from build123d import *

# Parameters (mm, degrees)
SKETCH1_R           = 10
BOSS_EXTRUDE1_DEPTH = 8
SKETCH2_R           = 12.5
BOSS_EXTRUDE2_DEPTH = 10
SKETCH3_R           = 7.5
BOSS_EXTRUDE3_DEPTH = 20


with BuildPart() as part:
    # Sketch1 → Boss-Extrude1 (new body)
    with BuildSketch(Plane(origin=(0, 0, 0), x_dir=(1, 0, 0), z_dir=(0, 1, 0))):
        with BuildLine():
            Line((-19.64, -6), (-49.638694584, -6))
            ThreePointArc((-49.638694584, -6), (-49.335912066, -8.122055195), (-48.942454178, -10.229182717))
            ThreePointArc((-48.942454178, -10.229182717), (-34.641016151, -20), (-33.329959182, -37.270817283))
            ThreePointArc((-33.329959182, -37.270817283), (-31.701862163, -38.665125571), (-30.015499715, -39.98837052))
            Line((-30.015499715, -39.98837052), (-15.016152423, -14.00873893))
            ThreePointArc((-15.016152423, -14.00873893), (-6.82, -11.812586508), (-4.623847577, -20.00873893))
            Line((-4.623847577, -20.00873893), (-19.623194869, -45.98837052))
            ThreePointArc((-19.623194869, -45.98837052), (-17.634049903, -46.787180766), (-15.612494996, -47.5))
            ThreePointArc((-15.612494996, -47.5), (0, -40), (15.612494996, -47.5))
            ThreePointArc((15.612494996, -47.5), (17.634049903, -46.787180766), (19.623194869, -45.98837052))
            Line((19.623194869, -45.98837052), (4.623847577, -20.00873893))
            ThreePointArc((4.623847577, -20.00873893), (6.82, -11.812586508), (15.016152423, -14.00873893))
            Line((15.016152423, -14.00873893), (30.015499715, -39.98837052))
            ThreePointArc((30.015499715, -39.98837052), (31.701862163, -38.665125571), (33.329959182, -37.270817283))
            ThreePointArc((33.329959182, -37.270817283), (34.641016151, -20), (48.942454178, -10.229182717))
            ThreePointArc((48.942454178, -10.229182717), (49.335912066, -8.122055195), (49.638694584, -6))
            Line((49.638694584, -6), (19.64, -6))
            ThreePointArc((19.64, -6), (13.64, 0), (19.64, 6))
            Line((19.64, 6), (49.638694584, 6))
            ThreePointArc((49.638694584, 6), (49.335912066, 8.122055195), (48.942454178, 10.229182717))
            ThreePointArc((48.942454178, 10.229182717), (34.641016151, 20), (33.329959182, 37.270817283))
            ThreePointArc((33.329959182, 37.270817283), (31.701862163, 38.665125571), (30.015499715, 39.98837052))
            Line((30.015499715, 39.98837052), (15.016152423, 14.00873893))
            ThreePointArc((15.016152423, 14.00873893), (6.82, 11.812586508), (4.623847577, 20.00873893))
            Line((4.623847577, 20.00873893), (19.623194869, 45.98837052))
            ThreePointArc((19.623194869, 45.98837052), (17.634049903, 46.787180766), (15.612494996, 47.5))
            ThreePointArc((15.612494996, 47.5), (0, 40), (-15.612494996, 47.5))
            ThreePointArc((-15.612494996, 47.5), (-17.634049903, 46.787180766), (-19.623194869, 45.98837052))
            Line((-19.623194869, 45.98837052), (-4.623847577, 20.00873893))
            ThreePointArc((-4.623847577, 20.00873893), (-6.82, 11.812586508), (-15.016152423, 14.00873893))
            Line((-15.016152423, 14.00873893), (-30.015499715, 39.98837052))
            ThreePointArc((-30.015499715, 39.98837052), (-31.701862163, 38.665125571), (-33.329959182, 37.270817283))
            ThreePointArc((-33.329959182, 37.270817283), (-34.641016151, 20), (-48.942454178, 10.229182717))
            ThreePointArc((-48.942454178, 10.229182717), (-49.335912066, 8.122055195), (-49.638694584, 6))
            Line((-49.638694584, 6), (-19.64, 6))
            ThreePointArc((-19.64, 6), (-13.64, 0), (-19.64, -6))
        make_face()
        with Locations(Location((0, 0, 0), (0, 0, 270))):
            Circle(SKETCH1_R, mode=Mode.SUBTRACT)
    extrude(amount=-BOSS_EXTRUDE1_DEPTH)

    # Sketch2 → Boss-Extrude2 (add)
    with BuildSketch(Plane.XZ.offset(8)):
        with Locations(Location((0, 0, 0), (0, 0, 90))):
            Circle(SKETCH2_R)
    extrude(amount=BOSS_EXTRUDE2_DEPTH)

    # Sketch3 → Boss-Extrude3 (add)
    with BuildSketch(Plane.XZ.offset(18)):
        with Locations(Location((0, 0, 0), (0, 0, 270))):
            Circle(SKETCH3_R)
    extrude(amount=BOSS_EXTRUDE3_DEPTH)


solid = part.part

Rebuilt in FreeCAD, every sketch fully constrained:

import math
import FreeCAD as App
import Part
import Sketcher
from FreeCAD import Vector
Q = App.Units.Quantity

doc = App.newDocument("Part")
body = doc.addObject("PartDesign::Body", "Body")

sketch1 = body.newObject("Sketcher::SketchObject", "Sketch")
sketch1.AttachmentSupport = (doc.getObject("XZ_Plane"), [""])
sketch1.MapMode = "FlatFace"
sketch1.addGeometry(Part.LineSegment(Vector(-19.6, 6, 0), Vector(-49.6, 6, 0)), False)
sketch1.addGeometry(Part.ArcOfCircle(Part.Circle(Vector(0, 0, 0), Vector(0, 0, 1), 50), math.radians(168.19), math.radians(173.11)), False)
sketch1.addGeometry(Part.ArcOfCircle(Part.Circle(Vector(-52, 30, 0), Vector(0, 0, 1), 20), math.radians(-81), math.radians(21)), False)
sketch1.addGeometry(Part.ArcOfCircle(Part.Circle(Vector(0, 0, 0), Vector(0, 0, 1), 50), math.radians(126.89), math.radians(131.81)), False)
sketch1.addGeometry(Part.LineSegment(Vector(-30, 40, 0), Vector(-15, 14, 0)), False)
sketch1.addGeometry(Part.ArcOfCircle(Part.Circle(Vector(-9.8, 17, 0), Vector(0, 0, 1), 6), math.radians(-150), math.radians(30)), False)
sketch1.addGeometry(Part.LineSegment(Vector(-4.6, 20, 0), Vector(-19.6, 46, 0)), False)
sketch1.addGeometry(Part.ArcOfCircle(Part.Circle(Vector(0, 0, 0), Vector(0, 0, 1), 50), math.radians(108.19), math.radians(113.11)), False)
sketch1.addGeometry(Part.ArcOfCircle(Part.Circle(Vector(0, 60, 0), Vector(0, 0, 1), 20), math.radians(-141), math.radians(-39)), False)
sketch1.addGeometry(Part.ArcOfCircle(Part.Circle(Vector(0, 0, 0), Vector(0, 0, 1), 50), math.radians(66.89), math.radians(71.81)), False)
sketch1.addGeometry(Part.LineSegment(Vector(19.6, 46, 0), Vector(4.6, 20, 0)), False)
sketch1.addGeometry(Part.ArcOfCircle(Part.Circle(Vector(9.8, 17, 0), Vector(0, 0, 1), 6), math.radians(150), math.radians(330)), False)
sketch1.addGeometry(Part.LineSegment(Vector(15, 14, 0), Vector(30, 40, 0)), False)
sketch1.addGeometry(Part.ArcOfCircle(Part.Circle(Vector(0, 0, 0), Vector(0, 0, 1), 50), math.radians(48.19), math.radians(53.11)), False)
sketch1.addGeometry(Part.ArcOfCircle(Part.Circle(Vector(52, 30, 0), Vector(0, 0, 1), 20), math.radians(159), math.radians(261)), False)
sketch1.addGeometry(Part.ArcOfCircle(Part.Circle(Vector(0, 0, 0), Vector(0, 0, 1), 50), math.radians(6.89), math.radians(11.81)), False)
sketch1.addGeometry(Part.LineSegment(Vector(49.6, 6, 0), Vector(19.6, 6, 0)), False)
sketch1.addGeometry(Part.ArcOfCircle(Part.Circle(Vector(19.6, 0, 0), Vector(0, 0, 1), 6), math.radians(90), math.radians(270)), False)
sketch1.addGeometry(Part.LineSegment(Vector(19.6, -6, 0), Vector(49.6, -6, 0)), False)
sketch1.addGeometry(Part.ArcOfCircle(Part.Circle(Vector(0, 0, 0), Vector(0, 0, 1), 50), math.radians(-11.81), math.radians(-6.89)), False)
sketch1.addGeometry(Part.ArcOfCircle(Part.Circle(Vector(52, -30, 0), Vector(0, 0, 1), 20), math.radians(99), math.radians(201)), False)
sketch1.addGeometry(Part.ArcOfCircle(Part.Circle(Vector(0, 0, 0), Vector(0, 0, 1), 50), math.radians(-53.11), math.radians(-48.19)), False)
sketch1.addGeometry(Part.LineSegment(Vector(30, -40, 0), Vector(15, -14, 0)), False)
sketch1.addGeometry(Part.ArcOfCircle(Part.Circle(Vector(9.8, -17, 0), Vector(0, 0, 1), 6), math.radians(30), math.radians(210)), False)
sketch1.addGeometry(Part.LineSegment(Vector(4.6, -20, 0), Vector(19.6, -46, 0)), False)
sketch1.addGeometry(Part.ArcOfCircle(Part.Circle(Vector(0, 0, 0), Vector(0, 0, 1), 50), math.radians(-71.81), math.radians(-66.89)), False)
sketch1.addGeometry(Part.ArcOfCircle(Part.Circle(Vector(0, -60, 0), Vector(0, 0, 1), 20), math.radians(39), math.radians(141)), False)
sketch1.addGeometry(Part.ArcOfCircle(Part.Circle(Vector(0, 0, 0), Vector(0, 0, 1), 50), math.radians(-113.11), math.radians(-108.19)), False)
sketch1.addGeometry(Part.LineSegment(Vector(-19.6, -46, 0), Vector(-4.6, -20, 0)), False)
sketch1.addGeometry(Part.ArcOfCircle(Part.Circle(Vector(-9.8, -17, 0), Vector(0, 0, 1), 6), math.radians(-30), math.radians(150)), False)
sketch1.addGeometry(Part.LineSegment(Vector(-15, -14, 0), Vector(-30, -40, 0)), False)
sketch1.addGeometry(Part.ArcOfCircle(Part.Circle(Vector(0, 0, 0), Vector(0, 0, 1), 50), math.radians(-131.81), math.radians(-126.89)), False)
sketch1.addGeometry(Part.ArcOfCircle(Part.Circle(Vector(-52, -30, 0), Vector(0, 0, 1), 20), math.radians(-21), math.radians(81)), False)
sketch1.addGeometry(Part.ArcOfCircle(Part.Circle(Vector(0, 0, 0), Vector(0, 0, 1), 50), math.radians(-173.11), math.radians(-168.19)), False)
sketch1.addGeometry(Part.LineSegment(Vector(-49.6, -6, 0), Vector(-19.6, -6, 0)), False)
sketch1.addGeometry(Part.ArcOfCircle(Part.Circle(Vector(-19.6, 0, 0), Vector(0, 0, 1), 6), math.radians(-90), math.radians(90)), False)
sketch1.addGeometry(Part.Circle(Vector(0, 0, 0), Vector(0, 0, 1), 10), False)
sketch1.addConstraint(Sketcher.Constraint("Coincident", 0, 2, 1, 2))
sketch1.addConstraint(Sketcher.Constraint("Coincident", 1, 1, 2, 1))
sketch1.addConstraint(Sketcher.Constraint("Coincident", 2, 2, 3, 2))
sketch1.addConstraint(Sketcher.Constraint("Coincident", 3, 1, 4, 1))
sketch1.addConstraint(Sketcher.Constraint("Tangent", 4, 2, 5, 1))
sketch1.addConstraint(Sketcher.Constraint("Tangent", 5, 2, 6, 1))
sketch1.addConstraint(Sketcher.Constraint("Coincident", 6, 2, 7, 2))
sketch1.addConstraint(Sketcher.Constraint("Coincident", 7, 1, 8, 1))
sketch1.addConstraint(Sketcher.Constraint("Coincident", 8, 2, 9, 2))
sketch1.addConstraint(Sketcher.Constraint("Coincident", 9, 1, 10, 1))
sketch1.addConstraint(Sketcher.Constraint("Tangent", 10, 2, 11, 1))
sketch1.addConstraint(Sketcher.Constraint("Tangent", 11, 2, 12, 1))
sketch1.addConstraint(Sketcher.Constraint("Coincident", 12, 2, 13, 2))
sketch1.addConstraint(Sketcher.Constraint("Coincident", 13, 1, 14, 1))
sketch1.addConstraint(Sketcher.Constraint("Coincident", 14, 2, 15, 2))
sketch1.addConstraint(Sketcher.Constraint("Coincident", 15, 1, 16, 1))
sketch1.addConstraint(Sketcher.Constraint("Tangent", 16, 2, 17, 1))
sketch1.addConstraint(Sketcher.Constraint("Tangent", 17, 2, 18, 1))
sketch1.addConstraint(Sketcher.Constraint("Coincident", 18, 2, 19, 2))
sketch1.addConstraint(Sketcher.Constraint("Coincident", 19, 1, 20, 1))
sketch1.addConstraint(Sketcher.Constraint("Coincident", 20, 2, 21, 2))
sketch1.addConstraint(Sketcher.Constraint("Coincident", 21, 1, 22, 1))
sketch1.addConstraint(Sketcher.Constraint("Tangent", 22, 2, 23, 1))
sketch1.addConstraint(Sketcher.Constraint("Tangent", 23, 2, 24, 1))
sketch1.addConstraint(Sketcher.Constraint("Coincident", 24, 2, 25, 2))
sketch1.addConstraint(Sketcher.Constraint("Coincident", 25, 1, 26, 1))
sketch1.addConstraint(Sketcher.Constraint("Coincident", 26, 2, 27, 2))
sketch1.addConstraint(Sketcher.Constraint("Coincident", 27, 1, 28, 1))
sketch1.addConstraint(Sketcher.Constraint("Tangent", 28, 2, 29, 1))
sketch1.addConstraint(Sketcher.Constraint("Tangent", 29, 2, 30, 1))
sketch1.addConstraint(Sketcher.Constraint("Coincident", 30, 2, 31, 2))
sketch1.addConstraint(Sketcher.Constraint("Coincident", 31, 1, 32, 1))
sketch1.addConstraint(Sketcher.Constraint("Coincident", 32, 2, 33, 2))
sketch1.addConstraint(Sketcher.Constraint("Coincident", 33, 1, 34, 1))
sketch1.addConstraint(Sketcher.Constraint("Tangent", 34, 2, 35, 1))
sketch1.addConstraint(Sketcher.Constraint("Tangent", 35, 2, 0, 1))
sketch1.addConstraint(Sketcher.Constraint("Horizontal", 0))
sketch1.addConstraint(Sketcher.Constraint("Horizontal", 16))
sketch1.addConstraint(Sketcher.Constraint("Horizontal", 18))
sketch1.addConstraint(Sketcher.Constraint("Horizontal", 34))
sketch1.addConstraint(Sketcher.Constraint("Coincident", 1, 3, -1, 1))
sketch1.addConstraint(Sketcher.Constraint("Coincident", 3, 3, -1, 1))
sketch1.addConstraint(Sketcher.Constraint("Coincident", 7, 3, -1, 1))
sketch1.addConstraint(Sketcher.Constraint("Coincident", 9, 3, -1, 1))
sketch1.addConstraint(Sketcher.Constraint("Coincident", 13, 3, -1, 1))
sketch1.addConstraint(Sketcher.Constraint("Coincident", 15, 3, -1, 1))
sketch1.addConstraint(Sketcher.Constraint("Coincident", 19, 3, -1, 1))
sketch1.addConstraint(Sketcher.Constraint("Coincident", 21, 3, -1, 1))
sketch1.addConstraint(Sketcher.Constraint("Coincident", 25, 3, -1, 1))
sketch1.addConstraint(Sketcher.Constraint("Coincident", 27, 3, -1, 1))
sketch1.addConstraint(Sketcher.Constraint("Coincident", 31, 3, -1, 1))
sketch1.addConstraint(Sketcher.Constraint("Coincident", 33, 3, -1, 1))
sketch1.addConstraint(Sketcher.Constraint("Coincident", 36, 3, -1, 1))
sketch1.addConstraint(Sketcher.Constraint("Equal", 1, 3))
sketch1.addConstraint(Sketcher.Constraint("Equal", 3, 7))
sketch1.addConstraint(Sketcher.Constraint("Equal", 2, 8))
sketch1.addConstraint(Sketcher.Constraint("Equal", 7, 9))
sketch1.addConstraint(Sketcher.Constraint("Equal", 5, 11))
sketch1.addConstraint(Sketcher.Constraint("Equal", 9, 13))
sketch1.addConstraint(Sketcher.Constraint("Equal", 8, 14))
sketch1.addConstraint(Sketcher.Constraint("Equal", 13, 15))
sketch1.addConstraint(Sketcher.Constraint("Equal", 11, 17))
sketch1.addConstraint(Sketcher.Constraint("Equal", 15, 19))
sketch1.addConstraint(Sketcher.Constraint("Equal", 14, 20))
sketch1.addConstraint(Sketcher.Constraint("Equal", 19, 21))
sketch1.addConstraint(Sketcher.Constraint("Equal", 17, 23))
sketch1.addConstraint(Sketcher.Constraint("Equal", 21, 25))
sketch1.addConstraint(Sketcher.Constraint("Equal", 20, 26))
sketch1.addConstraint(Sketcher.Constraint("Equal", 25, 27))
sketch1.addConstraint(Sketcher.Constraint("Equal", 23, 29))
sketch1.addConstraint(Sketcher.Constraint("Equal", 27, 31))
sketch1.addConstraint(Sketcher.Constraint("Equal", 26, 32))
sketch1.addConstraint(Sketcher.Constraint("Equal", 31, 33))
sketch1.addConstraint(Sketcher.Constraint("Equal", 29, 35))
sketch1.addConstraint(Sketcher.Constraint("Symmetric", 2, 3, 20, 3, -1, 1))
sketch1.addConstraint(Sketcher.Constraint("Symmetric", 5, 3, 23, 3, -1, 1))
sketch1.addConstraint(Sketcher.Constraint("Symmetric", 8, 3, 26, 3, -1, 1))
sketch1.addConstraint(Sketcher.Constraint("Symmetric", 11, 3, 29, 3, -1, 1))
sketch1.addConstraint(Sketcher.Constraint("Symmetric", 14, 3, 32, 3, -1, 1))
sketch1.addConstraint(Sketcher.Constraint("Symmetric", 17, 3, 35, 3, -1, 1))
sketch1.addConstraint(Sketcher.Constraint("Symmetric", 5, 3, 11, 3, -2))
sketch1.addConstraint(Sketcher.Constraint("Symmetric", 2, 3, 14, 3, -2))
sketch1.addConstraint(Sketcher.Constraint("PointOnObject", 8, 3, -2))
sketch1.addConstraint(Sketcher.Constraint("PointOnObject", 17, 3, -1))
sketch1.addConstraint(Sketcher.Constraint("Parallel", 4, 6))
sketch1.addConstraint(Sketcher.Constraint("Parallel", 10, 12))
sketch1.addConstraint(Sketcher.Constraint("Parallel", 6, 22))
sketch1.addConstraint(Sketcher.Constraint("Parallel", 22, 24))
sketch1.addConstraint(Sketcher.Constraint("Parallel", 12, 28))
sketch1.addConstraint(Sketcher.Constraint("Parallel", 28, 30))
sketch1.addConstraint(Sketcher.Constraint("Horizontal", 6, 2, 9, 1))
sketch1.addConstraint(Sketcher.Constraint("Equal", 4, 6))
sketch1.addConstraint(Sketcher.Constraint("Diameter", 36, Q("20 mm")))
sketch1.addConstraint(Sketcher.Constraint("Radius", 1, Q("50 mm")))
sketch1.addConstraint(Sketcher.Constraint("Radius", 2, Q("20 mm")))
sketch1.addConstraint(Sketcher.Constraint("Radius", 5, Q("6 mm")))
sketch1.addConstraint(Sketcher.Constraint("Angle", 4, Q("-60 deg")))
sketch1.addConstraint(Sketcher.Constraint("DistanceY", -1, 1, 2, 3, Q("30 mm")))
sketch1.addConstraint(Sketcher.Constraint("DistanceY", -1, 1, 8, 3, Q("60 mm")))
sketch1.addConstraint(Sketcher.Constraint("DistanceX", 5, 3, -1, 1, Q("9.82 mm")))
sketch1.addConstraint(Sketcher.Constraint("DistanceX", -1, 1, 17, 3, Q("19.64 mm")))
sketch1.addConstraint(Sketcher.Constraint("DistanceX", 2, 2, -1, 1, Q("33.329959 mm")))
pad1 = body.newObject("PartDesign::Pad", "Pad")
pad1.Profile = sketch1
pad1.Length = 8

sketch2 = body.newObject("Sketcher::SketchObject", "Sketch001")
sketch2.AttachmentSupport = (doc.getObject("XZ_Plane"), [""])
sketch2.MapMode = "FlatFace"
sketch2.AttachmentOffset = App.Placement(Vector(0, 0, 8), App.Rotation())
sketch2.addGeometry(Part.Circle(Vector(0, 0, 0), Vector(0, 0, 1), 12), False)
sketch2.addConstraint(Sketcher.Constraint("Coincident", 0, 3, -1, 1))
sketch2.addConstraint(Sketcher.Constraint("Diameter", 0, Q("25 mm")))
pad2 = body.newObject("PartDesign::Pad", "Pad001")
pad2.Profile = sketch2
pad2.Length = 10

sketch3 = body.newObject("Sketcher::SketchObject", "Sketch002")
sketch3.AttachmentSupport = (doc.getObject("XZ_Plane"), [""])
sketch3.MapMode = "FlatFace"
sketch3.AttachmentOffset = App.Placement(Vector(0, 0, 18), App.Rotation())
sketch3.addGeometry(Part.Circle(Vector(0, 0, 0), Vector(0, 0, 1), 8), False)
sketch3.addConstraint(Sketcher.Constraint("Coincident", 0, 3, -1, 1))
sketch3.addConstraint(Sketcher.Constraint("Diameter", 0, Q("15 mm")))
pad3 = body.newObject("PartDesign::Pad", "Pad002")
pad3.Profile = sketch3
pad3.Length = 20

doc.recompute()
